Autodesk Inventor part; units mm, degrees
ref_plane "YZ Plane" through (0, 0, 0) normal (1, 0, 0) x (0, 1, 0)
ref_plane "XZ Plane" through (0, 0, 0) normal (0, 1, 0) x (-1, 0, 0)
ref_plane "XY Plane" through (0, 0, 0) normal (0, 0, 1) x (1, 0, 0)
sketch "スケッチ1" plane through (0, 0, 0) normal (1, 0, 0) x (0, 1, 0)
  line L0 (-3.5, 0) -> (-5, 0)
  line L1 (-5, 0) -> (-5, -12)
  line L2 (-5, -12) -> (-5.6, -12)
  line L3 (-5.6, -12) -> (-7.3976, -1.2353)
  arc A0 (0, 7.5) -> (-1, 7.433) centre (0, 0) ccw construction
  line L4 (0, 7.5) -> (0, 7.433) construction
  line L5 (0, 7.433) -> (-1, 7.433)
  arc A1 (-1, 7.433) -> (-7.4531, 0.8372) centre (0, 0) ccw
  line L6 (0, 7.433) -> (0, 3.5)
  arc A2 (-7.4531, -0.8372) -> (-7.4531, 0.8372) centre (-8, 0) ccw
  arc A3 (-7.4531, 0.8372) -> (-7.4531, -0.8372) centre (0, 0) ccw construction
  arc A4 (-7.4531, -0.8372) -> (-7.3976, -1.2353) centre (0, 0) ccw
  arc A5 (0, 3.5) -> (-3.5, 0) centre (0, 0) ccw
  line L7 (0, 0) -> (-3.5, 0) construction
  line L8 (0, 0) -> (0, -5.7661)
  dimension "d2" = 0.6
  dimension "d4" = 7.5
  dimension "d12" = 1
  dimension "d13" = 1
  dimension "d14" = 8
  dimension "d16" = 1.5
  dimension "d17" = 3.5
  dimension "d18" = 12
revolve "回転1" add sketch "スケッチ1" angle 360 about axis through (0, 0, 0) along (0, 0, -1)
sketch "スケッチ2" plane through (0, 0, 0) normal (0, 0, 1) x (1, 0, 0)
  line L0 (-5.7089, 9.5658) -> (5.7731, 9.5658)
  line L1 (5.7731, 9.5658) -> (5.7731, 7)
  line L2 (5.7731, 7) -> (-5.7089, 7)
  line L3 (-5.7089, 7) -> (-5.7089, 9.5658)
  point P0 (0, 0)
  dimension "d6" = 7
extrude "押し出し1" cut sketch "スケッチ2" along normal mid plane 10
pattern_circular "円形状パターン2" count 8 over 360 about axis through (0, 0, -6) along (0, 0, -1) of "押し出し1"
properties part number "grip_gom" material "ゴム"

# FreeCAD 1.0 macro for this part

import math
import FreeCAD as App
import Part
import Sketcher

V = App.Vector
Q = App.Units.Quantity

doc = App.newDocument("Part")
body = doc.addObject("PartDesign::Body", "Body")

sketch1 = body.newObject("Sketcher::SketchObject", "Sketch")
sketch1.AttachmentSupport = (doc.getObject("YZ_Plane"), [""])
sketch1.MapMode = "FlatFace"
sketch1.addGeometry([
    Part.LineSegment(V(-5, 0, 0), V(-3.5, 0, 0)),
    Part.ArcOfCircle(Part.Circle(V(0, 0, 0), V(0, 0, 1), 3.5), math.radians(90), math.radians(180)),
    Part.LineSegment(V(0, 3.5, 0), V(0, 7.433, 0)),
    Part.LineSegment(V(0, 7.433, 0), V(-1, 7.433, 0)),
    Part.ArcOfCircle(Part.Circle(V(0, 0, 0), V(0, 0, 1), 7.499974), math.radians(97.662291), math.radians(173.590883)),
    Part.ArcOfCircle(Part.Circle(V(-8, 0, 0), V(0, 0, 1), 1.000002), math.radians(-56.845466), math.radians(56.845466)),
    Part.ArcOfCircle(Part.Circle(V(0.078972, 0.009944, 0), V(0, 0, 1), 7.579563), math.radians(-173.582821), math.radians(-170.544025)),
    Part.LineSegment(V(-7.3976, -1.2353, 0), V(-5.6, -12, 0)),
    Part.LineSegment(V(-5.6, -12, 0), V(-5, -12, 0)),
    Part.LineSegment(V(-5, -12, 0), V(-5, 0, 0)),
], False)
sketch1.addConstraint([
    Sketcher.Constraint("Coincident", 0, 2, 1, 2),
    Sketcher.Constraint("Coincident", 1, 1, 2, 1),
    Sketcher.Constraint("Coincident", 2, 2, 3, 1),
    Sketcher.Constraint("Coincident", 3, 2, 4, 1),
    Sketcher.Constraint("Coincident", 4, 2, 5, 2),
    Sketcher.Constraint("Coincident", 5, 1, 6, 1),
    Sketcher.Constraint("Coincident", 6, 2, 7, 1),
    Sketcher.Constraint("Coincident", 7, 2, 8, 1),
    Sketcher.Constraint("Coincident", 8, 2, 9, 1),
    Sketcher.Constraint("Coincident", 9, 2, 0, 1),
    Sketcher.Constraint("Horizontal", 0),
    Sketcher.Constraint("Vertical", 2),
    Sketcher.Constraint("Horizontal", 3),
    Sketcher.Constraint("Horizontal", 8),
    Sketcher.Constraint("Vertical", 9),
    Sketcher.Constraint("Coincident", 1, 3, -1, 1),
    Sketcher.Constraint("Coincident", 4, 3, -1, 1),
    Sketcher.Constraint("PointOnObject", 5, 3, -1),
    Sketcher.Constraint("PointOnObject", 0, 2, -1),
    Sketcher.Constraint("PointOnObject", 1, 1, -2),
    Sketcher.Constraint("Radius", 5, Q("1 mm")),
    Sketcher.Constraint("Radius", 1, Q("3.5 mm")),
    Sketcher.Constraint("Radius", 4, Q("7.5 mm")),
    Sketcher.Constraint("DistanceX", 3, 2, 3, 1, Q("1 mm")),
    Sketcher.Constraint("DistanceY", 9, 1, 9, 2, Q("12 mm")),
    Sketcher.Constraint("DistanceX", 0, 1, 0, 2, Q("1.5 mm")),
    Sketcher.Constraint("DistanceX", 8, 1, 8, 2, Q("0.6 mm")),
    Sketcher.Constraint("DistanceX", 5, 3, -1, 1, Q("8 mm")),
    Sketcher.Constraint("Radius", 6, Q("7.5796 mm")),
    Sketcher.Constraint("DistanceY", -1, 1, 6, 3, Q("0.01 mm")),
    Sketcher.Constraint("DistanceX", -1, 1, 6, 3, Q("0.079 mm")),
    Sketcher.Constraint("DistanceY", 6, 2, 5, 1, Q("0.398 mm")),
])
revolution = body.newObject("PartDesign::Revolution", "Revolution")
revolution.Profile = sketch1
revolution.ReferenceAxis = (sketch1, ["V_Axis"])
revolution.Angle = 360

sketch2 = body.newObject("Sketcher::SketchObject", "Sketch001")
sketch2.AttachmentSupport = (doc.getObject("XY_Plane"), [""])
sketch2.MapMode = "FlatFace"
sketch2.addGeometry([
    Part.LineSegment(V(5.8, 9.6, 0), V(-5.7, 9.6, 0)),
    Part.LineSegment(V(-5.7, 9.6, 0), V(-5.7, 7, 0)),
    Part.LineSegment(V(-5.7, 7, 0), V(5.8, 7, 0)),
    Part.LineSegment(V(5.8, 7, 0), V(5.8, 9.6, 0)),
], False)
sketch2.addConstraint([
    Sketcher.Constraint("Coincident", 0, 2, 1, 1),
    Sketcher.Constraint("Coincident", 1, 2, 2, 1),
    Sketcher.Constraint("Coincident", 2, 2, 3, 1),
    Sketcher.Constraint("Coincident", 3, 2, 0, 1),
    Sketcher.Constraint("Horizontal", 0),
    Sketcher.Constraint("Vertical", 1),
    Sketcher.Constraint("Horizontal", 2),
    Sketcher.Constraint("Vertical", 3),
    Sketcher.Constraint("DistanceY", -1, 1, 1, 2, Q("7 mm")),
    Sketcher.Constraint("DistanceX", 0, 2, 0, 1, Q("11.482 mm")),
    Sketcher.Constraint("DistanceY", 1, 2, 1, 1, Q("2.5658 mm")),
    Sketcher.Constraint("DistanceX", 0, 2, -1, 1, Q("5.709 mm")),
])
pocket1 = body.newObject("PartDesign::Pocket", "Pocket")
pocket1.Profile = sketch2
pocket1.Length = 10
pocket1.Midplane = True
doc.recompute()

polarpattern = body.newObject("PartDesign::PolarPattern", "PolarPattern")
polarpattern.Originals = [pocket1]
polarpattern.Axis = (doc.getObject("Z_Axis"), [""])
polarpattern.Angle = 360
polarpattern.Occurrences = 8
body.Tip = polarpattern

doc.recompute()
